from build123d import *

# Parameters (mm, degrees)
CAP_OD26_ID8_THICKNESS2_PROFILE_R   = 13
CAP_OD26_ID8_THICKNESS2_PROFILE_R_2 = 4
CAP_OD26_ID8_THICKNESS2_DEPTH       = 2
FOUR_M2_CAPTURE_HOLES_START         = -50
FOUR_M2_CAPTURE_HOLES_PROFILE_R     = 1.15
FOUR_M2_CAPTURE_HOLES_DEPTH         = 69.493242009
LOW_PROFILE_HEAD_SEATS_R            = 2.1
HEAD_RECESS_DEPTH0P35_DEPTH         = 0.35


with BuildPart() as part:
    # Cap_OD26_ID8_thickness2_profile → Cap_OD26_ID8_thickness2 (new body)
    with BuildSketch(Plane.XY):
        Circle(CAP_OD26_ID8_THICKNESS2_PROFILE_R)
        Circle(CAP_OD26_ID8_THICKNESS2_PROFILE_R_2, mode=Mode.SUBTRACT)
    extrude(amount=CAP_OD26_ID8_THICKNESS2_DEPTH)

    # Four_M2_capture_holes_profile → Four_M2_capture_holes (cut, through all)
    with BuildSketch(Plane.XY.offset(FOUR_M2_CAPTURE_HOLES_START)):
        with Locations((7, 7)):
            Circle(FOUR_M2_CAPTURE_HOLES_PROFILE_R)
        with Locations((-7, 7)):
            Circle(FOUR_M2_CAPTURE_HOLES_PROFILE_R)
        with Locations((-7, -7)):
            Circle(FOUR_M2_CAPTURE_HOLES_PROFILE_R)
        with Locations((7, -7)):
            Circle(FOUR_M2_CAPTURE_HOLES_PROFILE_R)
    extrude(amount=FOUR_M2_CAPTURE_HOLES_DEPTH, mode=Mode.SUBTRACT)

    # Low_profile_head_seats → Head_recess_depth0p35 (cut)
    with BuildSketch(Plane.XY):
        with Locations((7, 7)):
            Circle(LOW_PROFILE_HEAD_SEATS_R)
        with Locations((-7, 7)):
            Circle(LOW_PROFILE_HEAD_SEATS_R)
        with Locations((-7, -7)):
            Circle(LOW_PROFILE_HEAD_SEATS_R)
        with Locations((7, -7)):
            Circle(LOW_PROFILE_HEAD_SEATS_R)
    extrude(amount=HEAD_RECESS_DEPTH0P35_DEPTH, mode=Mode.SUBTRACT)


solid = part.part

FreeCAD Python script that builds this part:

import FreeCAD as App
import Part
import Sketcher

V = App.Vector

doc = App.newDocument("Part")
body = doc.addObject("PartDesign::Body", "Body")

sketch1 = body.newObject("Sketcher::SketchObject", "Sketch")
sketch1.AttachmentSupport = (doc.getObject("XY_Plane"), [""])
sketch1.MapMode = "FlatFace"
sketch1.addGeometry([
    Part.Circle(V(0, 0, 0), V(0, 0, 1), 13),
    Part.Circle(V(0, 0, 0), V(0, 0, 1), 4),
], False)
sketch1.addConstraint([
    Sketcher.Constraint("Coincident", 0, 3, -1, 1),
    Sketcher.Constraint("Coincident", 1, 3, -1, 1),
    Sketcher.Constraint("Diameter", 0, 26.0),
    Sketcher.Constraint("Diameter", 1, 8.0),
])
pad1 = body.newObject("PartDesign::Pad", "Pad")
pad1.Profile = sketch1
pad1.Length = 2

sketch2 = body.newObject("Sketcher::SketchObject", "Sketch001")
sketch2.AttachmentSupport = (doc.getObject("XY_Plane"), [""])
sketch2.MapMode = "FlatFace"
sketch2.AttachmentOffset = App.Placement(V(0, 0, -50), App.Rotation())
sketch2.addGeometry([
    Part.Circle(V(7, 7, 0), V(0, 0, 1), 1.1),
    Part.Circle(V(-7, 7, 0), V(0, 0, 1), 1.1),
    Part.Circle(V(-7, -7, 0), V(0, 0, 1), 1.1),
    Part.Circle(V(7, -7, 0), V(0, 0, 1), 1.1),
], False)
sketch2.addConstraint([
    Sketcher.Constraint("Equal", 0, 1),
    Sketcher.Constraint("Equal", 1, 2),
    Sketcher.Constraint("Equal", 2, 3),
    Sketcher.Constraint("Symmetric", 0, 3, 2, 3, -1, 1),
    Sketcher.Constraint("Symmetric", 1, 3, 3, 3, -1, 1),
    Sketcher.Constraint("Symmetric", 0, 3, 1, 3, -2),
    Sketcher.Constraint("Diameter", 0, 2.3),
    Sketcher.Constraint("DistanceX", -1, 1, 0, 3, 7.0),
    Sketcher.Constraint("DistanceY", -1, 1, 0, 3, 7.0),
])
pocket1 = body.newObject("PartDesign::Pocket", "Pocket")
pocket1.Profile = sketch2
pocket1.Type = "ThroughAll"
pocket1.Reversed = True

sketch3 = body.newObject("Sketcher::SketchObject", "Sketch002")
sketch3.AttachmentSupport = (doc.getObject("XY_Plane"), [""])
sketch3.MapMode = "FlatFace"
sketch3.addGeometry([
    Part.Circle(V(7, 7, 0), V(0, 0, 1), 2.1),
    Part.Circle(V(-7, 7, 0), V(0, 0, 1), 2.1),
    Part.Circle(V(-7, -7, 0), V(0, 0, 1), 2.1),
    Part.Circle(V(7, -7, 0), V(0, 0, 1), 2.1),
], False)
sketch3.addConstraint([
    Sketcher.Constraint("Equal", 0, 1),
    Sketcher.Constraint("Equal", 1, 2),
    Sketcher.Constraint("Equal", 2, 3),
    Sketcher.Constraint("Symmetric", 0, 3, 2, 3, -1, 1),
    Sketcher.Constraint("Symmetric", 1, 3, 3, 3, -1, 1),
    Sketcher.Constraint("Symmetric", 0, 3, 1, 3, -2),
    Sketcher.Constraint("Diameter", 0, 4.2),
    Sketcher.Constraint("DistanceX", -1, 1, 0, 3, 7.0),
    Sketcher.Constraint("DistanceY", -1, 1, 0, 3, 7.0),
])
pocket2 = body.newObject("PartDesign::Pocket", "Pocket001")
pocket2.Profile = sketch3
pocket2.Length = 0.35
pocket2.Reversed = True

doc.recompute()
